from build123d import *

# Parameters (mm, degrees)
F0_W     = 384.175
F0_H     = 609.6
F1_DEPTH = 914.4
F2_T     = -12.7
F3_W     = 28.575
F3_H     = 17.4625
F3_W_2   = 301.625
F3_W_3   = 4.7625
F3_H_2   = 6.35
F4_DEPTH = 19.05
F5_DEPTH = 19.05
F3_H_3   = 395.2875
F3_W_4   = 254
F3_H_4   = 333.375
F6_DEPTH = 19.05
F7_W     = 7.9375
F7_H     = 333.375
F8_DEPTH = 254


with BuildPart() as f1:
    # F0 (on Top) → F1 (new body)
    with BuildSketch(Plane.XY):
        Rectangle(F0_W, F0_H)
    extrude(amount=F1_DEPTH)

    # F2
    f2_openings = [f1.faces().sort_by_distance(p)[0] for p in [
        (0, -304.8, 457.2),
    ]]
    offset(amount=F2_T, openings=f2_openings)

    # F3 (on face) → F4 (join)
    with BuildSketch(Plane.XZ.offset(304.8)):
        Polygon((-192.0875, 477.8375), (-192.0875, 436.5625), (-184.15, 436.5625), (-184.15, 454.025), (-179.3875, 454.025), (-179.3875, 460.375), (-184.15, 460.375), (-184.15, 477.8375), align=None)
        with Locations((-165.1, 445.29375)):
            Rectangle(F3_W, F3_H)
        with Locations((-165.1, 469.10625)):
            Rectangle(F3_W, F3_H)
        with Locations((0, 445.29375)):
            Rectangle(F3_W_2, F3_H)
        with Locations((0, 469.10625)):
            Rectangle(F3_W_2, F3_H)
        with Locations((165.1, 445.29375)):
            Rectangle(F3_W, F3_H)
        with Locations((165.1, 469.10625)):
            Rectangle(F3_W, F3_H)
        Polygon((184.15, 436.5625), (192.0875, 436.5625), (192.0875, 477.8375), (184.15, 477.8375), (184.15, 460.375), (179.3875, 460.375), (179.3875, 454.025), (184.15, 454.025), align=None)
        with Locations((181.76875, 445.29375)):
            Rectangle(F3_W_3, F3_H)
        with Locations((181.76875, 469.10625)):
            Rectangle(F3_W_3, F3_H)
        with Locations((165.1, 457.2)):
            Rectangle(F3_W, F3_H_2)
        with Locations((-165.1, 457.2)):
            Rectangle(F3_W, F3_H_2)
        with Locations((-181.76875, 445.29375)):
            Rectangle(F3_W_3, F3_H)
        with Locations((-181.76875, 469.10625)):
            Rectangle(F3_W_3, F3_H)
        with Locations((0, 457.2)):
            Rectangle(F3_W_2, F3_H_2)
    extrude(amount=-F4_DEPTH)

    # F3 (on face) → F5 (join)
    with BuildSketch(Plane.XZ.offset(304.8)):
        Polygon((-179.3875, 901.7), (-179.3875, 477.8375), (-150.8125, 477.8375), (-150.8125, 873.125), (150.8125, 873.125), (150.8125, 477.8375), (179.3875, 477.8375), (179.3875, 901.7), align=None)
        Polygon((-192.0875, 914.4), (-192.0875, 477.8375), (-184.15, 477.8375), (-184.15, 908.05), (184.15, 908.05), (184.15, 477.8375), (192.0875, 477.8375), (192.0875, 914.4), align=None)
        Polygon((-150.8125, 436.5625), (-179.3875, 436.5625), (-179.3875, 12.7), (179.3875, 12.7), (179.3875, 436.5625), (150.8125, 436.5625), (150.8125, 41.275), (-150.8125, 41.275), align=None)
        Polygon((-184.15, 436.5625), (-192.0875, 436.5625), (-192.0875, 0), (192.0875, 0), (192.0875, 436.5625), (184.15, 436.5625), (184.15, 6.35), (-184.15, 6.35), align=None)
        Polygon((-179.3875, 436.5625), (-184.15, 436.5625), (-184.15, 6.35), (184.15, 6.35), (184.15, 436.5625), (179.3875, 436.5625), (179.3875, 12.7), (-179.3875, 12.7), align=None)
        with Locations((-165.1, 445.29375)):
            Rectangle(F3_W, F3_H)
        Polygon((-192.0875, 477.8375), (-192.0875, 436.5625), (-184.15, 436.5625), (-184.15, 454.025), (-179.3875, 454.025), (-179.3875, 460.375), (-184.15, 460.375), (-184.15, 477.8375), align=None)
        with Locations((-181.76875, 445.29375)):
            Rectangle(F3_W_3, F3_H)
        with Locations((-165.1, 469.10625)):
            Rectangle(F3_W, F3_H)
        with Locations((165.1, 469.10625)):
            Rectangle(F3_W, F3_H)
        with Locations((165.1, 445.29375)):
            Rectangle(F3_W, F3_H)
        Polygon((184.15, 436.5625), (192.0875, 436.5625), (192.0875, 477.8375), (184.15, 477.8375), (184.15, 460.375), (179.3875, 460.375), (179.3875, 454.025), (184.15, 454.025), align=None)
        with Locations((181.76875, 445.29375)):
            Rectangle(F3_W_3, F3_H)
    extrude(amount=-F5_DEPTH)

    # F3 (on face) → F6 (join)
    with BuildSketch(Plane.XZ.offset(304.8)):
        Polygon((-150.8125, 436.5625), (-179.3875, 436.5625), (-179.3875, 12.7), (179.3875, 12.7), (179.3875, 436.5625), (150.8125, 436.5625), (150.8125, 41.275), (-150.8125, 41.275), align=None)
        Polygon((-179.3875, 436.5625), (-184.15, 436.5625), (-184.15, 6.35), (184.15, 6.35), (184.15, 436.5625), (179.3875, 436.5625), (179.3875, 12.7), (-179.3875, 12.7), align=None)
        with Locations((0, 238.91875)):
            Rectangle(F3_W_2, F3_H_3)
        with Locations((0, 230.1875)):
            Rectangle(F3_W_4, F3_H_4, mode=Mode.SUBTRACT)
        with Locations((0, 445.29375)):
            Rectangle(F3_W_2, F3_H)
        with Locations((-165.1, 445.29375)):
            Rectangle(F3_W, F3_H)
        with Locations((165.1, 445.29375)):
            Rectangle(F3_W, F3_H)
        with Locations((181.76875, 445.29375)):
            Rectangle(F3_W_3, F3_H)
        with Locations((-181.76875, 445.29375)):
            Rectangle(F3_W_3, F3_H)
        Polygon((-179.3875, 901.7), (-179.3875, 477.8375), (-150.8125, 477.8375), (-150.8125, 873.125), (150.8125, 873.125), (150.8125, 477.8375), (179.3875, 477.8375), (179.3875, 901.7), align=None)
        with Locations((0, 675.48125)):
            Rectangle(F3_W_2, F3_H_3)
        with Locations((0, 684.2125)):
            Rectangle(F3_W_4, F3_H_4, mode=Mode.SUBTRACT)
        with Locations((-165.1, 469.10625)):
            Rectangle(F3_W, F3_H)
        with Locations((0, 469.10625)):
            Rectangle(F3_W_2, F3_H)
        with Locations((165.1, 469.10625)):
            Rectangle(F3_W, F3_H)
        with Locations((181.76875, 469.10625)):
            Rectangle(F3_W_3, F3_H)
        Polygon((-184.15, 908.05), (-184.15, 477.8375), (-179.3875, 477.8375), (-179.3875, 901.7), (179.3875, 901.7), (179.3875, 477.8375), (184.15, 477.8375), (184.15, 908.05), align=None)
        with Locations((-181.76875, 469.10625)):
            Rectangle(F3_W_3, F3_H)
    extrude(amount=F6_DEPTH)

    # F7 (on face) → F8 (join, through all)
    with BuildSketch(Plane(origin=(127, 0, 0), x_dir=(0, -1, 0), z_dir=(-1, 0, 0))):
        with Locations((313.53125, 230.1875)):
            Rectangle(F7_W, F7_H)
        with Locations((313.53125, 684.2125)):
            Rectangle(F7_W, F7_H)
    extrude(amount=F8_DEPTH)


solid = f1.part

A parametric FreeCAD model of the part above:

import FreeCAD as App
import Part
import Sketcher

V = App.Vector
Q = App.Units.Quantity


def faces_at(feature, points):
    """Names of the faces that lie closest to the given points."""
    faces = feature.Shape.Faces
    near = lambda p: min(range(len(faces)), key=lambda i: faces[i].distToShape(Part.Vertex(*p))[0])
    return sorted({f"Face{near(p) + 1}" for p in points})

doc = App.newDocument("Part")
body = doc.addObject("PartDesign::Body", "Body")

# Sketch on XY plane
sketch1 = body.newObject("Sketcher::SketchObject", "Sketch")
sketch1.AttachmentSupport = (doc.getObject("XY_Plane"), [""])
sketch1.MapMode = "FlatFace"
sketch1.addGeometry([
    Part.LineSegment(V(-192, 305, 0), V(-192, -305, 0)),
    Part.LineSegment(V(-192, -305, 0), V(192, -305, 0)),
    Part.LineSegment(V(192, -305, 0), V(192, 305, 0)),
    Part.LineSegment(V(192, 305, 0), V(-192, 305, 0)),
], False)
sketch1.addConstraint([
    Sketcher.Constraint("Coincident", 0, 2, 1, 1),
    Sketcher.Constraint("Coincident", 1, 2, 2, 1),
    Sketcher.Constraint("Coincident", 2, 2, 3, 1),
    Sketcher.Constraint("Coincident", 3, 2, 0, 1),
    Sketcher.Constraint("Vertical", 0),
    Sketcher.Constraint("Horizontal", 1),
    Sketcher.Constraint("Vertical", 2),
    Sketcher.Constraint("Horizontal", 3),
    Sketcher.Constraint("Symmetric", 0, 2, 2, 2, -1, 1),
    Sketcher.Constraint("DistanceY", 0, 2, 0, 1, Q("24 in")),
    Sketcher.Constraint("DistanceX", 1, 1, 1, 2, Q("15.125 in")),
])
pad1 = body.newObject("PartDesign::Pad", "Pad")
pad1.Profile = sketch1
pad1.Length = Q("36 in")
doc.recompute()

thickness = body.newObject("PartDesign::Thickness", "Thickness")
thickness.Base = (pad1, faces_at(pad1, [(0, -304.8, 457.2)]))
thickness.Value = Q("0.5 in")
thickness.Reversed = True
thickness.Join = "Arc"

# Sketch on XZ plane
sketch2 = body.newObject("Sketcher::SketchObject", "Sketch001")
sketch2.AttachmentSupport = (doc.getObject("XZ_Plane"), [""])
sketch2.MapMode = "FlatFace"
sketch2.AttachmentOffset = App.Placement(V(0, 0, 12 * 25.4), App.Rotation())
sketch2.addGeometry([
    Part.LineSegment(V(-192, 478, 0), V(-192, 437, 0)),
    Part.LineSegment(V(-192, 437, 0), V(192, 437, 0)),
    Part.LineSegment(V(192, 437, 0), V(192, 478, 0)),
    Part.LineSegment(V(192, 478, 0), V(-192, 478, 0)),
], False)
sketch2.addConstraint([
    Sketcher.Constraint("Coincident", 0, 2, 1, 1),
    Sketcher.Constraint("Coincident", 1, 2, 2, 1),
    Sketcher.Constraint("Coincident", 2, 2, 3, 1),
    Sketcher.Constraint("Coincident", 3, 2, 0, 1),
    Sketcher.Constraint("Vertical", 0),
    Sketcher.Constraint("Horizontal", 1),
    Sketcher.Constraint("Vertical", 2),
    Sketcher.Constraint("Horizontal", 3),
    Sketcher.Constraint("DistanceX", 1, 1, 1, 2, Q("15.125 in")),
    Sketcher.Constraint("DistanceY", 0, 2, 0, 1, Q("1.625 in")),
    Sketcher.Constraint("DistanceX", 0, 2, -1, 1, Q("7.5625 in")),
    Sketcher.Constraint("DistanceY", -1, 1, 0, 2, Q("17.1875 in")),
])
pad2 = body.newObject("PartDesign::Pad", "Pad001")
pad2.Profile = sketch2
pad2.Length = Q("0.75 in")
pad2.Reversed = True

# Sketch on XZ plane
sketch3 = body.newObject("Sketcher::SketchObject", "Sketch002")
sketch3.AttachmentSupport = (doc.getObject("XZ_Plane"), [""])
sketch3.MapMode = "FlatFace"
sketch3.AttachmentOffset = App.Placement(V(0, 0, 12 * 25.4), App.Rotation())
sketch3.addGeometry([
    Part.LineSegment(V(-179.4, 901.7, 0), V(-179.4, 460.4, 0)),  # 0
    Part.LineSegment(V(-179.4, 460.4, 0), V(-150.8, 460.4, 0)),  # 1
    Part.LineSegment(V(-150.8, 460.4, 0), V(-150.8, 873.1, 0)),  # 2
    Part.LineSegment(V(-150.8, 873.1, 0), V(150.8, 873.1, 0)),  # 3
    Part.LineSegment(V(150.8, 873.1, 0), V(150.8, 460.4, 0)),  # 4
    Part.LineSegment(V(150.8, 460.4, 0), V(179.4, 460.4, 0)),  # 5
    Part.LineSegment(V(179.4, 460.4, 0), V(179.4, 901.7, 0)),  # 6
    Part.LineSegment(V(179.4, 901.7, 0), V(-179.4, 901.7, 0)),  # 7
    Part.LineSegment(V(192.1, 914.4, 0), V(-192.1, 914.4, 0)),  # 8
    Part.LineSegment(V(-192.1, 914.4, 0), V(-192.1, 0, 0)),  # 9
    Part.LineSegment(V(-192.1, 0, 0), V(192.1, 0, 0)),  # 10
    Part.LineSegment(V(192.1, 0, 0), V(192.1, 914.4, 0)),  # 11
    Part.LineSegment(V(179.4, 460.4, 0), V(179.4, 454, 0)),  # 12
    Part.LineSegment(V(179.4, 454, 0), V(150.8, 454, 0)),  # 13
    Part.LineSegment(V(150.8, 454, 0), V(150.8, 41.3, 0)),  # 14
    Part.LineSegment(V(150.8, 41.3, 0), V(-150.8, 41.3, 0)),  # 15
    Part.LineSegment(V(-150.8, 41.3, 0), V(-150.8, 454, 0)),  # 16
    Part.LineSegment(V(-150.8, 454, 0), V(-179.4, 454, 0)),  # 17
    Part.LineSegment(V(-179.4, 454, 0), V(-179.4, 460.4, 0)),  # 18
    Part.LineSegment(V(-179.4, 460.4, 0), V(-184.2, 460.4, 0)),  # 19
    Part.LineSegment(V(-184.2, 460.4, 0), V(-184.2, 908, 0)),  # 20
    Part.LineSegment(V(-184.2, 908, 0), V(184.2, 908, 0)),  # 21
    Part.LineSegment(V(184.2, 908, 0), V(184.2, 460.4, 0)),  # 22
    Part.LineSegment(V(184.2, 460.4, 0), V(179.4, 460.4, 0)),  # 23
], False)
sketch3.addConstraint([
    Sketcher.Constraint("Coincident", 0, 2, 1, 1),
    Sketcher.Constraint("Coincident", 1, 2, 2, 1),
    Sketcher.Constraint("Coincident", 2, 2, 3, 1),
    Sketcher.Constraint("Coincident", 3, 2, 4, 1),
    Sketcher.Constraint("Coincident", 4, 2, 5, 1),
    Sketcher.Constraint("Coincident", 5, 2, 6, 1),
    Sketcher.Constraint("Coincident", 6, 2, 7, 1),
    Sketcher.Constraint("Coincident", 7, 2, 0, 1),
    Sketcher.Constraint("Coincident", 8, 2, 9, 1),
    Sketcher.Constraint("Coincident", 9, 2, 10, 1),
    Sketcher.Constraint("Coincident", 10, 2, 11, 1),
    Sketcher.Constraint("Coincident", 11, 2, 8, 1),
    Sketcher.Constraint("Coincident", 12, 2, 13, 1),
    Sketcher.Constraint("Coincident", 13, 2, 14, 1),
    Sketcher.Constraint("Coincident", 14, 2, 15, 1),
    Sketcher.Constraint("Coincident", 15, 2, 16, 1),
    Sketcher.Constraint("Coincident", 16, 2, 17, 1),
    Sketcher.Constraint("Coincident", 17, 2, 18, 1),
    Sketcher.Constraint("Coincident", 18, 2, 19, 1),
    Sketcher.Constraint("Coincident", 19, 2, 20, 1),
    Sketcher.Constraint("Coincident", 20, 2, 21, 1),
    Sketcher.Constraint("Coincident", 21, 2, 22, 1),
    Sketcher.Constraint("Coincident", 22, 2, 23, 1),
    Sketcher.Constraint("Coincident", 23, 2, 12, 1),
    Sketcher.Constraint("Vertical", 0),
    Sketcher.Constraint("Horizontal", 1),
    Sketcher.Constraint("Vertical", 2),
    Sketcher.Constraint("Horizontal", 3),
    Sketcher.Constraint("Vertical", 4),
    Sketcher.Constraint("Horizontal", 5),
    Sketcher.Constraint("Vertical", 6),
    Sketcher.Constraint("Horizontal", 7),
    Sketcher.Constraint("Horizontal", 8),
    Sketcher.Constraint("Vertical", 9),
    Sketcher.Constraint("Horizontal", 10),
    Sketcher.Constraint("Vertical", 11),
    Sketcher.Constraint("Vertical", 12),
    Sketcher.Constraint("Horizontal", 13),
    Sketcher.Constraint("Vertical", 14),
    Sketcher.Constraint("Horizontal", 15),
    Sketcher.Constraint("Vertical", 16),
    Sketcher.Constraint("Horizontal", 17),
    Sketcher.Constraint("Vertical", 18),
    Sketcher.Constraint("Horizontal", 19),
    Sketcher.Constraint("Vertical", 20),
    Sketcher.Constraint("Horizontal", 21),
    Sketcher.Constraint("Vertical", 22),
    Sketcher.Constraint("Horizontal", 23),
    Sketcher.Constraint("Coincident", 18, 2, 0, 2),
    Sketcher.Constraint("Coincident", 23, 2, 5, 2),
    Sketcher.Constraint("Symmetric", 9, 2, 10, 2, -1, 1),
    Sketcher.Constraint("Symmetric", 1, 2, 4, 2, -2),
    Sketcher.Constraint("Symmetric", 13, 2, 16, 2, -2),
    Sketcher.Constraint("Vertical", 4, 2, 13, 2),
    Sketcher.Constraint("Equal", 1, 5),
    Sketcher.Constraint("Equal", 19, 23),
    Sketcher.Constraint("Equal", 4, 14),
    Sketcher.Constraint("DistanceY", 9, 2, 9, 1, Q("36 in")),
    Sketcher.Constraint("DistanceX", 21, 1, 21, 2, Q("14.5 in")),
    Sketcher.Constraint("DistanceX", 0, 2, 3, 2, Q("13 in")),
    Sketcher.Constraint("DistanceY", 2, 1, 2, 2, Q("16.25 in")),
    Sketcher.Constraint("DistanceY", 12, 2, 12, 1, Q("0.25 in")),
    Sketcher.Constraint("DistanceY", -1, 1, 6, 2, Q("35.5 in")),
    Sketcher.Constraint("DistanceX", 8, 2, 7, 2, Q("0.5 in")),
    Sketcher.Constraint("DistanceX", 1, 1, 1, 2, Q("1.125 in")),
    Sketcher.Constraint("DistanceY", 0, 2, 0, 1, Q("17.375 in")),
    Sketcher.Constraint("DistanceY", 20, 1, 20, 2, Q("17.625 in")),
])
pad3 = body.newObject("PartDesign::Pad", "Pad002")
pad3.Profile = sketch3
pad3.Length = Q("0.75 in")
pad3.Reversed = True

# Sketch on XZ plane
sketch4 = body.newObject("Sketcher::SketchObject", "Sketch003")
sketch4.AttachmentSupport = (doc.getObject("XZ_Plane"), [""])
sketch4.MapMode = "FlatFace"
sketch4.AttachmentOffset = App.Placement(V(0, 0, 12 * 25.4), App.Rotation())
sketch4.addGeometry([
    Part.LineSegment(V(-184, 6, 0), V(184, 6, 0)),  # 0
    Part.LineSegment(V(184, 6, 0), V(184, 454, 0)),  # 1
    Part.LineSegment(V(184, 454, 0), V(-184, 454, 0)),  # 2
    Part.LineSegment(V(-184, 454, 0), V(-184, 6, 0)),  # 3
    Part.LineSegment(V(127, 64, 0), V(-127, 64, 0)),  # 4
    Part.LineSegment(V(-127, 64, 0), V(-127, 397, 0)),  # 5
    Part.LineSegment(V(-127, 397, 0), V(127, 397, 0)),  # 6
    Part.LineSegment(V(127, 397, 0), V(127, 64, 0)),  # 7
    Part.LineSegment(V(184, 460, 0), V(184, 908, 0)),  # 8
    Part.LineSegment(V(184, 908, 0), V(-184, 908, 0)),  # 9
    Part.LineSegment(V(-184, 908, 0), V(-184, 460, 0)),  # 10
    Part.LineSegment(V(-184, 460, 0), V(184, 460, 0)),  # 11
    Part.LineSegment(V(127, 518, 0), V(-127, 518, 0)),  # 12
    Part.LineSegment(V(-127, 518, 0), V(-127, 851, 0)),  # 13
    Part.LineSegment(V(-127, 851, 0), V(127, 851, 0)),  # 14
    Part.LineSegment(V(127, 851, 0), V(127, 518, 0)),  # 15
], False)
sketch4.addConstraint([
    Sketcher.Constraint("Coincident", 0, 2, 1, 1),
    Sketcher.Constraint("Coincident", 1, 2, 2, 1),
    Sketcher.Constraint("Coincident", 2, 2, 3, 1),
    Sketcher.Constraint("Coincident", 3, 2, 0, 1),
    Sketcher.Constraint("Coincident", 4, 2, 5, 1),
    Sketcher.Constraint("Coincident", 5, 2, 6, 1),
    Sketcher.Constraint("Coincident", 6, 2, 7, 1),
    Sketcher.Constraint("Coincident", 7, 2, 4, 1),
    Sketcher.Constraint("Coincident", 8, 2, 9, 1),
    Sketcher.Constraint("Coincident", 9, 2, 10, 1),
    Sketcher.Constraint("Coincident", 10, 2, 11, 1),
    Sketcher.Constraint("Coincident", 11, 2, 8, 1),
    Sketcher.Constraint("Coincident", 12, 2, 13, 1),
    Sketcher.Constraint("Coincident", 13, 2, 14, 1),
    Sketcher.Constraint("Coincident", 14, 2, 15, 1),
    Sketcher.Constraint("Coincident", 15, 2, 12, 1),
    Sketcher.Constraint("Horizontal", 0),
    Sketcher.Constraint("Vertical", 1),
    Sketcher.Constraint("Horizontal", 2),
    Sketcher.Constraint("Vertical", 3),
    Sketcher.Constraint("Horizontal", 4),
    Sketcher.Constraint("Vertical", 5),
    Sketcher.Constraint("Horizontal", 6),
    Sketcher.Constraint("Vertical", 7),
    Sketcher.Constraint("Vertical", 8),
    Sketcher.Constraint("Horizontal", 9),
    Sketcher.Constraint("Vertical", 10),
    Sketcher.Constraint("Horizontal", 11),
    Sketcher.Constraint("Horizontal", 12),
    Sketcher.Constraint("Vertical", 13),
    Sketcher.Constraint("Horizontal", 14),
    Sketcher.Constraint("Vertical", 15),
    Sketcher.Constraint("Vertical", 1, 2, 8, 2),
    Sketcher.Constraint("Vertical", 3, 2, 9, 2),
    Sketcher.Constraint("Vertical", 5, 2, 12, 2),
    Sketcher.Constraint("Vertical", 7, 2, 14, 2),
    Sketcher.Constraint("Equal", 3, 8),
    Sketcher.Constraint("Equal", 7, 13),
    Sketcher.Constraint("DistanceX", 4, 2, 4, 1, Q("10 in")),
    Sketcher.Constraint("DistanceX", 0, 1, 0, 2, Q("14.5 in")),
    Sketcher.Constraint("DistanceX", 4, 2, -1, 1, Q("5 in")),
    Sketcher.Constraint("DistanceY", -1, 1, 4, 2, Q("2.5 in")),
    Sketcher.Constraint("DistanceY", -1, 1, 13, 2, Q("33.5 in")),
    Sketcher.Constraint("DistanceY", 5, 2, 10, 2, Q("2.5 in")),
    Sketcher.Constraint("DistanceY", 2, 2, 12, 2, Q("2.5 in")),
    Sketcher.Constraint("DistanceY", 1, 1, 1, 2, Q("17.625 in")),
    Sketcher.Constraint("DistanceY", 5, 1, 5, 2, Q("13.125 in")),
    Sketcher.Constraint("DistanceX", -1, 1, 0, 2, Q("7.25 in")),
])
pad4 = body.newObject("PartDesign::Pad", "Pad003")
pad4.Profile = sketch4
pad4.Length = Q("0.75 in")

# Sketch on YZ plane
sketch5 = body.newObject("Sketcher::SketchObject", "Sketch004")
sketch5.AttachmentSupport = (doc.getObject("YZ_Plane"), [""])
sketch5.MapMode = "FlatFace"
sketch5.AttachmentOffset = App.Placement(V(0, 0, 5 * 25.4), App.Rotation())
sketch5.addGeometry([
    Part.LineSegment(V(-310, 397, 0), V(-310, 64, 0)),  # 0
    Part.LineSegment(V(-310, 64, 0), V(-318, 64, 0)),  # 1
    Part.LineSegment(V(-318, 64, 0), V(-318, 397, 0)),  # 2
    Part.LineSegment(V(-318, 397, 0), V(-310, 397, 0)),  # 3
    Part.LineSegment(V(-310, 851, 0), V(-310, 518, 0)),  # 4
    Part.LineSegment(V(-310, 518, 0), V(-318, 518, 0)),  # 5
    Part.LineSegment(V(-318, 518, 0), V(-318, 851, 0)),  # 6
    Part.LineSegment(V(-318, 851, 0), V(-310, 851, 0)),  # 7
], False)
sketch5.addConstraint([
    Sketcher.Constraint("Coincident", 0, 2, 1, 1),
    Sketcher.Constraint("Coincident", 1, 2, 2, 1),
    Sketcher.Constraint("Coincident", 2, 2, 3, 1),
    Sketcher.Constraint("Coincident", 3, 2, 0, 1),
    Sketcher.Constraint("Coincident", 4, 2, 5, 1),
    Sketcher.Constraint("Coincident", 5, 2, 6, 1),
    Sketcher.Constraint("Coincident", 6, 2, 7, 1),
    Sketcher.Constraint("Coincident", 7, 2, 4, 1),
    Sketcher.Constraint("Vertical", 0),
    Sketcher.Constraint("Horizontal", 1),
    Sketcher.Constraint("Vertical", 2),
    Sketcher.Constraint("Horizontal", 3),
    Sketcher.Constraint("Vertical", 4),
    Sketcher.Constraint("Horizontal", 5),
    Sketcher.Constraint("Vertical", 6),
    Sketcher.Constraint("Horizontal", 7),
    Sketcher.Constraint("Vertical", 3, 2, 4, 2),
    Sketcher.Constraint("Vertical", 2, 2, 5, 2),
    Sketcher.Constraint("Equal", 2, 4),
    Sketcher.Constraint("DistanceY", 1, 2, 6, 2, Q("31 in")),
    Sketcher.Constraint("DistanceY", -1, 1, 0, 2, Q("2.5 in")),
    Sketcher.Constraint("DistanceX", 1, 2, -1, 1, Q("12.5 in")),
    Sketcher.Constraint("DistanceX", 1, 2, 1, 1, Q("0.3125 in")),
    Sketcher.Constraint("DistanceY", 0, 2, 0, 1, Q("13.125 in")),
])
pad5 = body.newObject("PartDesign::Pad", "Pad004")
pad5.Profile = sketch5
pad5.Length = Q("10 in")
pad5.Reversed = True

doc.recompute()
